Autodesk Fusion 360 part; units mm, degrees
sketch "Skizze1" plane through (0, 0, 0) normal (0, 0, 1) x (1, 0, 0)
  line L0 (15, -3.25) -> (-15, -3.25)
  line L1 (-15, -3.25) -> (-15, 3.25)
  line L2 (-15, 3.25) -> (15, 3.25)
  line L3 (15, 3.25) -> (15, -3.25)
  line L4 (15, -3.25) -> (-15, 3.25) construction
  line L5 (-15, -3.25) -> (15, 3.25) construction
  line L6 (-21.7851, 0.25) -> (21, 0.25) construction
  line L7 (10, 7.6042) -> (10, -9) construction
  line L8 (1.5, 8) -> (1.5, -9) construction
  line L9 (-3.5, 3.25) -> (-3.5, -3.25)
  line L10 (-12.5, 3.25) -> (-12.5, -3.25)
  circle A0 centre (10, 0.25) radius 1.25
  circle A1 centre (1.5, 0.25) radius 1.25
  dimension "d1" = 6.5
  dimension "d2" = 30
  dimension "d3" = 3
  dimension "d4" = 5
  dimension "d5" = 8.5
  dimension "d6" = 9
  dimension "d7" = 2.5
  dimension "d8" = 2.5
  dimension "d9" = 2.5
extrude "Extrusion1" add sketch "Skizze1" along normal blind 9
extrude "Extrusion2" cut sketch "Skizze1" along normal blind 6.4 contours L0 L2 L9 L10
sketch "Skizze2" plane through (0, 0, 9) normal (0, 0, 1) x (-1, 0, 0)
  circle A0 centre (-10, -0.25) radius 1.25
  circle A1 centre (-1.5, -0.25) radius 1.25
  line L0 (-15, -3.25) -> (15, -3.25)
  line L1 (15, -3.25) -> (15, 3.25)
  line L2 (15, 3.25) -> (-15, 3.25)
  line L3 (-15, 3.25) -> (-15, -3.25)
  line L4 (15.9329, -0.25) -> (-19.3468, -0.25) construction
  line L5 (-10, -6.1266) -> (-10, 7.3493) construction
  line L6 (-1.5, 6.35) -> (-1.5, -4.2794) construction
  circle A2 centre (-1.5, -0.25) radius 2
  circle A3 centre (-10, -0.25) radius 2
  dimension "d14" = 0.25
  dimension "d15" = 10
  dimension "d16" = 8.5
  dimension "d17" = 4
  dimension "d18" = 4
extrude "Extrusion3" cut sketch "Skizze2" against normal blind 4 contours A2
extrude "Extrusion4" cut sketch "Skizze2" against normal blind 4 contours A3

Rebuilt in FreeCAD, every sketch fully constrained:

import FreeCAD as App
import Part
import Sketcher

V = App.Vector


def add_polygon(sketch, points):
    """Adds a closed chain of lines whose ends are joined by coincident constraints."""
    first, n = sketch.GeometryCount, len(points)
    for a, b in zip(points, points[1:] + points[:1]):
        sketch.addGeometry(Part.LineSegment(App.Vector(*a, 0), App.Vector(*b, 0)), False)
    for i in range(n):
        sketch.addConstraint(Sketcher.Constraint("Coincident", first + i, 2, first + (i + 1) % n, 1))

doc = App.newDocument("Part")
body = doc.addObject("PartDesign::Body", "Body")

sketch1 = body.newObject("Sketcher::SketchObject", "Sketch")
sketch1.AttachmentSupport = (doc.getObject("XY_Plane"), [""])
sketch1.MapMode = "FlatFace"
add_polygon(sketch1, [(15, -3.2), (15, 3.2), (-15, 3.2), (-15, -3.2)])
sketch1.addGeometry(Part.Circle(V(1.5, 0.2, 0), V(0, 0, 1), 1.2), False)
sketch1.addGeometry(Part.Circle(V(10, 0.2, 0), V(0, 0, 1), 1.2), False)
sketch1.addConstraint(Sketcher.Constraint("Vertical", 0))
sketch1.addConstraint(Sketcher.Constraint("Horizontal", 1))
sketch1.addConstraint(Sketcher.Constraint("Vertical", 2))
sketch1.addConstraint(Sketcher.Constraint("Horizontal", 3))
sketch1.addConstraint(Sketcher.Constraint("Equal", 4, 5))
sketch1.addConstraint(Sketcher.Constraint("Symmetric", 0, 2, 2, 2, -1, 1))
sketch1.addConstraint(Sketcher.Constraint("Horizontal", 4, 3, 5, 3))
sketch1.addConstraint(Sketcher.Constraint("Diameter", 4, 2.5))
sketch1.addConstraint(Sketcher.Constraint("DistanceX", 1, 2, 1, 1, 30.0))
sketch1.addConstraint(Sketcher.Constraint("DistanceY", 0, 1, 0, 2, 6.5))
sketch1.addConstraint(Sketcher.Constraint("DistanceX", 5, 3, 0, 2, 5.0))
sketch1.addConstraint(Sketcher.Constraint("DistanceY", 5, 3, 0, 2, 3.0))
sketch1.addConstraint(Sketcher.Constraint("DistanceX", 4, 3, 5, 3, 8.5))
pad1 = body.newObject("PartDesign::Pad", "Pad")
pad1.Profile = sketch1
pad1.Length = 9

sketch2 = body.newObject("Sketcher::SketchObject", "Sketch001")
sketch2.AttachmentSupport = (doc.getObject("XY_Plane"), [""])
sketch2.MapMode = "FlatFace"
add_polygon(sketch2, [(-12, -3), (-4, -3), (-4, 3), (-12, 3)])
sketch2.addConstraint(Sketcher.Constraint("Horizontal", 0))
sketch2.addConstraint(Sketcher.Constraint("Vertical", 1))
sketch2.addConstraint(Sketcher.Constraint("Horizontal", 2))
sketch2.addConstraint(Sketcher.Constraint("Vertical", 3))
sketch2.addConstraint(Sketcher.Constraint("DistanceX", 0, 1, 0, 2, 9.0))
sketch2.addConstraint(Sketcher.Constraint("DistanceY", 1, 1, 1, 2, 6.5))
sketch2.addConstraint(Sketcher.Constraint("DistanceX", 0, 2, -1, 1, 3.5))
sketch2.addConstraint(Sketcher.Constraint("DistanceY", 0, 2, -1, 1, 3.25))
pocket1 = body.newObject("PartDesign::Pocket", "Pocket")
pocket1.Profile = sketch2
pocket1.Length = 6.4
pocket1.Reversed = True

sketch3 = body.newObject("Sketcher::SketchObject", "Sketch002")
sketch3.AttachmentSupport = (doc.getObject("XY_Plane"), [""])
sketch3.MapMode = "FlatFace"
sketch3.AttachmentOffset = App.Placement(V(0, 0, 9), App.Rotation())
sketch3.addGeometry(Part.Circle(V(1.5, 0.2, 0), V(0, 0, 1), 2), False)
sketch3.addGeometry(Part.Circle(V(1.5, 0.2, 0), V(0, 0, 1), 1.2), False)
sketch3.addConstraint(Sketcher.Constraint("Coincident", 1, 3, 0, 3))
sketch3.addConstraint(Sketcher.Constraint("Diameter", 0, 4.0))
sketch3.addConstraint(Sketcher.Constraint("Diameter", 1, 2.5))
sketch3.addConstraint(Sketcher.Constraint("DistanceY", -1, 1, 0, 3, 0.25))
sketch3.addConstraint(Sketcher.Constraint("DistanceX", -1, 1, 0, 3, 1.5))
pocket2 = body.newObject("PartDesign::Pocket", "Pocket001")
pocket2.Profile = sketch3
pocket2.Length = 4

sketch4 = body.newObject("Sketcher::SketchObject", "Sketch003")
sketch4.AttachmentSupport = (doc.getObject("XY_Plane"), [""])
sketch4.MapMode = "FlatFace"
sketch4.AttachmentOffset = App.Placement(V(0, 0, 9), App.Rotation())
sketch4.addGeometry(Part.Circle(V(10, 0.2, 0), V(0, 0, 1), 2), False)
sketch4.addGeometry(Part.Circle(V(10, 0.2, 0), V(0, 0, 1), 1.2), False)
sketch4.addConstraint(Sketcher.Constraint("Coincident", 1, 3, 0, 3))
sketch4.addConstraint(Sketcher.Constraint("Diameter", 0, 4.0))
sketch4.addConstraint(Sketcher.Constraint("DistanceX", -1, 1, 0, 3, 10.0))
sketch4.addConstraint(Sketcher.Constraint("Diameter", 1, 2.5))
sketch4.addConstraint(Sketcher.Constraint("DistanceY", -1, 1, 0, 3, 0.25))
pocket3 = body.newObject("PartDesign::Pocket", "Pocket002")
pocket3.Profile = sketch4
pocket3.Length = 4

doc.recompute()
